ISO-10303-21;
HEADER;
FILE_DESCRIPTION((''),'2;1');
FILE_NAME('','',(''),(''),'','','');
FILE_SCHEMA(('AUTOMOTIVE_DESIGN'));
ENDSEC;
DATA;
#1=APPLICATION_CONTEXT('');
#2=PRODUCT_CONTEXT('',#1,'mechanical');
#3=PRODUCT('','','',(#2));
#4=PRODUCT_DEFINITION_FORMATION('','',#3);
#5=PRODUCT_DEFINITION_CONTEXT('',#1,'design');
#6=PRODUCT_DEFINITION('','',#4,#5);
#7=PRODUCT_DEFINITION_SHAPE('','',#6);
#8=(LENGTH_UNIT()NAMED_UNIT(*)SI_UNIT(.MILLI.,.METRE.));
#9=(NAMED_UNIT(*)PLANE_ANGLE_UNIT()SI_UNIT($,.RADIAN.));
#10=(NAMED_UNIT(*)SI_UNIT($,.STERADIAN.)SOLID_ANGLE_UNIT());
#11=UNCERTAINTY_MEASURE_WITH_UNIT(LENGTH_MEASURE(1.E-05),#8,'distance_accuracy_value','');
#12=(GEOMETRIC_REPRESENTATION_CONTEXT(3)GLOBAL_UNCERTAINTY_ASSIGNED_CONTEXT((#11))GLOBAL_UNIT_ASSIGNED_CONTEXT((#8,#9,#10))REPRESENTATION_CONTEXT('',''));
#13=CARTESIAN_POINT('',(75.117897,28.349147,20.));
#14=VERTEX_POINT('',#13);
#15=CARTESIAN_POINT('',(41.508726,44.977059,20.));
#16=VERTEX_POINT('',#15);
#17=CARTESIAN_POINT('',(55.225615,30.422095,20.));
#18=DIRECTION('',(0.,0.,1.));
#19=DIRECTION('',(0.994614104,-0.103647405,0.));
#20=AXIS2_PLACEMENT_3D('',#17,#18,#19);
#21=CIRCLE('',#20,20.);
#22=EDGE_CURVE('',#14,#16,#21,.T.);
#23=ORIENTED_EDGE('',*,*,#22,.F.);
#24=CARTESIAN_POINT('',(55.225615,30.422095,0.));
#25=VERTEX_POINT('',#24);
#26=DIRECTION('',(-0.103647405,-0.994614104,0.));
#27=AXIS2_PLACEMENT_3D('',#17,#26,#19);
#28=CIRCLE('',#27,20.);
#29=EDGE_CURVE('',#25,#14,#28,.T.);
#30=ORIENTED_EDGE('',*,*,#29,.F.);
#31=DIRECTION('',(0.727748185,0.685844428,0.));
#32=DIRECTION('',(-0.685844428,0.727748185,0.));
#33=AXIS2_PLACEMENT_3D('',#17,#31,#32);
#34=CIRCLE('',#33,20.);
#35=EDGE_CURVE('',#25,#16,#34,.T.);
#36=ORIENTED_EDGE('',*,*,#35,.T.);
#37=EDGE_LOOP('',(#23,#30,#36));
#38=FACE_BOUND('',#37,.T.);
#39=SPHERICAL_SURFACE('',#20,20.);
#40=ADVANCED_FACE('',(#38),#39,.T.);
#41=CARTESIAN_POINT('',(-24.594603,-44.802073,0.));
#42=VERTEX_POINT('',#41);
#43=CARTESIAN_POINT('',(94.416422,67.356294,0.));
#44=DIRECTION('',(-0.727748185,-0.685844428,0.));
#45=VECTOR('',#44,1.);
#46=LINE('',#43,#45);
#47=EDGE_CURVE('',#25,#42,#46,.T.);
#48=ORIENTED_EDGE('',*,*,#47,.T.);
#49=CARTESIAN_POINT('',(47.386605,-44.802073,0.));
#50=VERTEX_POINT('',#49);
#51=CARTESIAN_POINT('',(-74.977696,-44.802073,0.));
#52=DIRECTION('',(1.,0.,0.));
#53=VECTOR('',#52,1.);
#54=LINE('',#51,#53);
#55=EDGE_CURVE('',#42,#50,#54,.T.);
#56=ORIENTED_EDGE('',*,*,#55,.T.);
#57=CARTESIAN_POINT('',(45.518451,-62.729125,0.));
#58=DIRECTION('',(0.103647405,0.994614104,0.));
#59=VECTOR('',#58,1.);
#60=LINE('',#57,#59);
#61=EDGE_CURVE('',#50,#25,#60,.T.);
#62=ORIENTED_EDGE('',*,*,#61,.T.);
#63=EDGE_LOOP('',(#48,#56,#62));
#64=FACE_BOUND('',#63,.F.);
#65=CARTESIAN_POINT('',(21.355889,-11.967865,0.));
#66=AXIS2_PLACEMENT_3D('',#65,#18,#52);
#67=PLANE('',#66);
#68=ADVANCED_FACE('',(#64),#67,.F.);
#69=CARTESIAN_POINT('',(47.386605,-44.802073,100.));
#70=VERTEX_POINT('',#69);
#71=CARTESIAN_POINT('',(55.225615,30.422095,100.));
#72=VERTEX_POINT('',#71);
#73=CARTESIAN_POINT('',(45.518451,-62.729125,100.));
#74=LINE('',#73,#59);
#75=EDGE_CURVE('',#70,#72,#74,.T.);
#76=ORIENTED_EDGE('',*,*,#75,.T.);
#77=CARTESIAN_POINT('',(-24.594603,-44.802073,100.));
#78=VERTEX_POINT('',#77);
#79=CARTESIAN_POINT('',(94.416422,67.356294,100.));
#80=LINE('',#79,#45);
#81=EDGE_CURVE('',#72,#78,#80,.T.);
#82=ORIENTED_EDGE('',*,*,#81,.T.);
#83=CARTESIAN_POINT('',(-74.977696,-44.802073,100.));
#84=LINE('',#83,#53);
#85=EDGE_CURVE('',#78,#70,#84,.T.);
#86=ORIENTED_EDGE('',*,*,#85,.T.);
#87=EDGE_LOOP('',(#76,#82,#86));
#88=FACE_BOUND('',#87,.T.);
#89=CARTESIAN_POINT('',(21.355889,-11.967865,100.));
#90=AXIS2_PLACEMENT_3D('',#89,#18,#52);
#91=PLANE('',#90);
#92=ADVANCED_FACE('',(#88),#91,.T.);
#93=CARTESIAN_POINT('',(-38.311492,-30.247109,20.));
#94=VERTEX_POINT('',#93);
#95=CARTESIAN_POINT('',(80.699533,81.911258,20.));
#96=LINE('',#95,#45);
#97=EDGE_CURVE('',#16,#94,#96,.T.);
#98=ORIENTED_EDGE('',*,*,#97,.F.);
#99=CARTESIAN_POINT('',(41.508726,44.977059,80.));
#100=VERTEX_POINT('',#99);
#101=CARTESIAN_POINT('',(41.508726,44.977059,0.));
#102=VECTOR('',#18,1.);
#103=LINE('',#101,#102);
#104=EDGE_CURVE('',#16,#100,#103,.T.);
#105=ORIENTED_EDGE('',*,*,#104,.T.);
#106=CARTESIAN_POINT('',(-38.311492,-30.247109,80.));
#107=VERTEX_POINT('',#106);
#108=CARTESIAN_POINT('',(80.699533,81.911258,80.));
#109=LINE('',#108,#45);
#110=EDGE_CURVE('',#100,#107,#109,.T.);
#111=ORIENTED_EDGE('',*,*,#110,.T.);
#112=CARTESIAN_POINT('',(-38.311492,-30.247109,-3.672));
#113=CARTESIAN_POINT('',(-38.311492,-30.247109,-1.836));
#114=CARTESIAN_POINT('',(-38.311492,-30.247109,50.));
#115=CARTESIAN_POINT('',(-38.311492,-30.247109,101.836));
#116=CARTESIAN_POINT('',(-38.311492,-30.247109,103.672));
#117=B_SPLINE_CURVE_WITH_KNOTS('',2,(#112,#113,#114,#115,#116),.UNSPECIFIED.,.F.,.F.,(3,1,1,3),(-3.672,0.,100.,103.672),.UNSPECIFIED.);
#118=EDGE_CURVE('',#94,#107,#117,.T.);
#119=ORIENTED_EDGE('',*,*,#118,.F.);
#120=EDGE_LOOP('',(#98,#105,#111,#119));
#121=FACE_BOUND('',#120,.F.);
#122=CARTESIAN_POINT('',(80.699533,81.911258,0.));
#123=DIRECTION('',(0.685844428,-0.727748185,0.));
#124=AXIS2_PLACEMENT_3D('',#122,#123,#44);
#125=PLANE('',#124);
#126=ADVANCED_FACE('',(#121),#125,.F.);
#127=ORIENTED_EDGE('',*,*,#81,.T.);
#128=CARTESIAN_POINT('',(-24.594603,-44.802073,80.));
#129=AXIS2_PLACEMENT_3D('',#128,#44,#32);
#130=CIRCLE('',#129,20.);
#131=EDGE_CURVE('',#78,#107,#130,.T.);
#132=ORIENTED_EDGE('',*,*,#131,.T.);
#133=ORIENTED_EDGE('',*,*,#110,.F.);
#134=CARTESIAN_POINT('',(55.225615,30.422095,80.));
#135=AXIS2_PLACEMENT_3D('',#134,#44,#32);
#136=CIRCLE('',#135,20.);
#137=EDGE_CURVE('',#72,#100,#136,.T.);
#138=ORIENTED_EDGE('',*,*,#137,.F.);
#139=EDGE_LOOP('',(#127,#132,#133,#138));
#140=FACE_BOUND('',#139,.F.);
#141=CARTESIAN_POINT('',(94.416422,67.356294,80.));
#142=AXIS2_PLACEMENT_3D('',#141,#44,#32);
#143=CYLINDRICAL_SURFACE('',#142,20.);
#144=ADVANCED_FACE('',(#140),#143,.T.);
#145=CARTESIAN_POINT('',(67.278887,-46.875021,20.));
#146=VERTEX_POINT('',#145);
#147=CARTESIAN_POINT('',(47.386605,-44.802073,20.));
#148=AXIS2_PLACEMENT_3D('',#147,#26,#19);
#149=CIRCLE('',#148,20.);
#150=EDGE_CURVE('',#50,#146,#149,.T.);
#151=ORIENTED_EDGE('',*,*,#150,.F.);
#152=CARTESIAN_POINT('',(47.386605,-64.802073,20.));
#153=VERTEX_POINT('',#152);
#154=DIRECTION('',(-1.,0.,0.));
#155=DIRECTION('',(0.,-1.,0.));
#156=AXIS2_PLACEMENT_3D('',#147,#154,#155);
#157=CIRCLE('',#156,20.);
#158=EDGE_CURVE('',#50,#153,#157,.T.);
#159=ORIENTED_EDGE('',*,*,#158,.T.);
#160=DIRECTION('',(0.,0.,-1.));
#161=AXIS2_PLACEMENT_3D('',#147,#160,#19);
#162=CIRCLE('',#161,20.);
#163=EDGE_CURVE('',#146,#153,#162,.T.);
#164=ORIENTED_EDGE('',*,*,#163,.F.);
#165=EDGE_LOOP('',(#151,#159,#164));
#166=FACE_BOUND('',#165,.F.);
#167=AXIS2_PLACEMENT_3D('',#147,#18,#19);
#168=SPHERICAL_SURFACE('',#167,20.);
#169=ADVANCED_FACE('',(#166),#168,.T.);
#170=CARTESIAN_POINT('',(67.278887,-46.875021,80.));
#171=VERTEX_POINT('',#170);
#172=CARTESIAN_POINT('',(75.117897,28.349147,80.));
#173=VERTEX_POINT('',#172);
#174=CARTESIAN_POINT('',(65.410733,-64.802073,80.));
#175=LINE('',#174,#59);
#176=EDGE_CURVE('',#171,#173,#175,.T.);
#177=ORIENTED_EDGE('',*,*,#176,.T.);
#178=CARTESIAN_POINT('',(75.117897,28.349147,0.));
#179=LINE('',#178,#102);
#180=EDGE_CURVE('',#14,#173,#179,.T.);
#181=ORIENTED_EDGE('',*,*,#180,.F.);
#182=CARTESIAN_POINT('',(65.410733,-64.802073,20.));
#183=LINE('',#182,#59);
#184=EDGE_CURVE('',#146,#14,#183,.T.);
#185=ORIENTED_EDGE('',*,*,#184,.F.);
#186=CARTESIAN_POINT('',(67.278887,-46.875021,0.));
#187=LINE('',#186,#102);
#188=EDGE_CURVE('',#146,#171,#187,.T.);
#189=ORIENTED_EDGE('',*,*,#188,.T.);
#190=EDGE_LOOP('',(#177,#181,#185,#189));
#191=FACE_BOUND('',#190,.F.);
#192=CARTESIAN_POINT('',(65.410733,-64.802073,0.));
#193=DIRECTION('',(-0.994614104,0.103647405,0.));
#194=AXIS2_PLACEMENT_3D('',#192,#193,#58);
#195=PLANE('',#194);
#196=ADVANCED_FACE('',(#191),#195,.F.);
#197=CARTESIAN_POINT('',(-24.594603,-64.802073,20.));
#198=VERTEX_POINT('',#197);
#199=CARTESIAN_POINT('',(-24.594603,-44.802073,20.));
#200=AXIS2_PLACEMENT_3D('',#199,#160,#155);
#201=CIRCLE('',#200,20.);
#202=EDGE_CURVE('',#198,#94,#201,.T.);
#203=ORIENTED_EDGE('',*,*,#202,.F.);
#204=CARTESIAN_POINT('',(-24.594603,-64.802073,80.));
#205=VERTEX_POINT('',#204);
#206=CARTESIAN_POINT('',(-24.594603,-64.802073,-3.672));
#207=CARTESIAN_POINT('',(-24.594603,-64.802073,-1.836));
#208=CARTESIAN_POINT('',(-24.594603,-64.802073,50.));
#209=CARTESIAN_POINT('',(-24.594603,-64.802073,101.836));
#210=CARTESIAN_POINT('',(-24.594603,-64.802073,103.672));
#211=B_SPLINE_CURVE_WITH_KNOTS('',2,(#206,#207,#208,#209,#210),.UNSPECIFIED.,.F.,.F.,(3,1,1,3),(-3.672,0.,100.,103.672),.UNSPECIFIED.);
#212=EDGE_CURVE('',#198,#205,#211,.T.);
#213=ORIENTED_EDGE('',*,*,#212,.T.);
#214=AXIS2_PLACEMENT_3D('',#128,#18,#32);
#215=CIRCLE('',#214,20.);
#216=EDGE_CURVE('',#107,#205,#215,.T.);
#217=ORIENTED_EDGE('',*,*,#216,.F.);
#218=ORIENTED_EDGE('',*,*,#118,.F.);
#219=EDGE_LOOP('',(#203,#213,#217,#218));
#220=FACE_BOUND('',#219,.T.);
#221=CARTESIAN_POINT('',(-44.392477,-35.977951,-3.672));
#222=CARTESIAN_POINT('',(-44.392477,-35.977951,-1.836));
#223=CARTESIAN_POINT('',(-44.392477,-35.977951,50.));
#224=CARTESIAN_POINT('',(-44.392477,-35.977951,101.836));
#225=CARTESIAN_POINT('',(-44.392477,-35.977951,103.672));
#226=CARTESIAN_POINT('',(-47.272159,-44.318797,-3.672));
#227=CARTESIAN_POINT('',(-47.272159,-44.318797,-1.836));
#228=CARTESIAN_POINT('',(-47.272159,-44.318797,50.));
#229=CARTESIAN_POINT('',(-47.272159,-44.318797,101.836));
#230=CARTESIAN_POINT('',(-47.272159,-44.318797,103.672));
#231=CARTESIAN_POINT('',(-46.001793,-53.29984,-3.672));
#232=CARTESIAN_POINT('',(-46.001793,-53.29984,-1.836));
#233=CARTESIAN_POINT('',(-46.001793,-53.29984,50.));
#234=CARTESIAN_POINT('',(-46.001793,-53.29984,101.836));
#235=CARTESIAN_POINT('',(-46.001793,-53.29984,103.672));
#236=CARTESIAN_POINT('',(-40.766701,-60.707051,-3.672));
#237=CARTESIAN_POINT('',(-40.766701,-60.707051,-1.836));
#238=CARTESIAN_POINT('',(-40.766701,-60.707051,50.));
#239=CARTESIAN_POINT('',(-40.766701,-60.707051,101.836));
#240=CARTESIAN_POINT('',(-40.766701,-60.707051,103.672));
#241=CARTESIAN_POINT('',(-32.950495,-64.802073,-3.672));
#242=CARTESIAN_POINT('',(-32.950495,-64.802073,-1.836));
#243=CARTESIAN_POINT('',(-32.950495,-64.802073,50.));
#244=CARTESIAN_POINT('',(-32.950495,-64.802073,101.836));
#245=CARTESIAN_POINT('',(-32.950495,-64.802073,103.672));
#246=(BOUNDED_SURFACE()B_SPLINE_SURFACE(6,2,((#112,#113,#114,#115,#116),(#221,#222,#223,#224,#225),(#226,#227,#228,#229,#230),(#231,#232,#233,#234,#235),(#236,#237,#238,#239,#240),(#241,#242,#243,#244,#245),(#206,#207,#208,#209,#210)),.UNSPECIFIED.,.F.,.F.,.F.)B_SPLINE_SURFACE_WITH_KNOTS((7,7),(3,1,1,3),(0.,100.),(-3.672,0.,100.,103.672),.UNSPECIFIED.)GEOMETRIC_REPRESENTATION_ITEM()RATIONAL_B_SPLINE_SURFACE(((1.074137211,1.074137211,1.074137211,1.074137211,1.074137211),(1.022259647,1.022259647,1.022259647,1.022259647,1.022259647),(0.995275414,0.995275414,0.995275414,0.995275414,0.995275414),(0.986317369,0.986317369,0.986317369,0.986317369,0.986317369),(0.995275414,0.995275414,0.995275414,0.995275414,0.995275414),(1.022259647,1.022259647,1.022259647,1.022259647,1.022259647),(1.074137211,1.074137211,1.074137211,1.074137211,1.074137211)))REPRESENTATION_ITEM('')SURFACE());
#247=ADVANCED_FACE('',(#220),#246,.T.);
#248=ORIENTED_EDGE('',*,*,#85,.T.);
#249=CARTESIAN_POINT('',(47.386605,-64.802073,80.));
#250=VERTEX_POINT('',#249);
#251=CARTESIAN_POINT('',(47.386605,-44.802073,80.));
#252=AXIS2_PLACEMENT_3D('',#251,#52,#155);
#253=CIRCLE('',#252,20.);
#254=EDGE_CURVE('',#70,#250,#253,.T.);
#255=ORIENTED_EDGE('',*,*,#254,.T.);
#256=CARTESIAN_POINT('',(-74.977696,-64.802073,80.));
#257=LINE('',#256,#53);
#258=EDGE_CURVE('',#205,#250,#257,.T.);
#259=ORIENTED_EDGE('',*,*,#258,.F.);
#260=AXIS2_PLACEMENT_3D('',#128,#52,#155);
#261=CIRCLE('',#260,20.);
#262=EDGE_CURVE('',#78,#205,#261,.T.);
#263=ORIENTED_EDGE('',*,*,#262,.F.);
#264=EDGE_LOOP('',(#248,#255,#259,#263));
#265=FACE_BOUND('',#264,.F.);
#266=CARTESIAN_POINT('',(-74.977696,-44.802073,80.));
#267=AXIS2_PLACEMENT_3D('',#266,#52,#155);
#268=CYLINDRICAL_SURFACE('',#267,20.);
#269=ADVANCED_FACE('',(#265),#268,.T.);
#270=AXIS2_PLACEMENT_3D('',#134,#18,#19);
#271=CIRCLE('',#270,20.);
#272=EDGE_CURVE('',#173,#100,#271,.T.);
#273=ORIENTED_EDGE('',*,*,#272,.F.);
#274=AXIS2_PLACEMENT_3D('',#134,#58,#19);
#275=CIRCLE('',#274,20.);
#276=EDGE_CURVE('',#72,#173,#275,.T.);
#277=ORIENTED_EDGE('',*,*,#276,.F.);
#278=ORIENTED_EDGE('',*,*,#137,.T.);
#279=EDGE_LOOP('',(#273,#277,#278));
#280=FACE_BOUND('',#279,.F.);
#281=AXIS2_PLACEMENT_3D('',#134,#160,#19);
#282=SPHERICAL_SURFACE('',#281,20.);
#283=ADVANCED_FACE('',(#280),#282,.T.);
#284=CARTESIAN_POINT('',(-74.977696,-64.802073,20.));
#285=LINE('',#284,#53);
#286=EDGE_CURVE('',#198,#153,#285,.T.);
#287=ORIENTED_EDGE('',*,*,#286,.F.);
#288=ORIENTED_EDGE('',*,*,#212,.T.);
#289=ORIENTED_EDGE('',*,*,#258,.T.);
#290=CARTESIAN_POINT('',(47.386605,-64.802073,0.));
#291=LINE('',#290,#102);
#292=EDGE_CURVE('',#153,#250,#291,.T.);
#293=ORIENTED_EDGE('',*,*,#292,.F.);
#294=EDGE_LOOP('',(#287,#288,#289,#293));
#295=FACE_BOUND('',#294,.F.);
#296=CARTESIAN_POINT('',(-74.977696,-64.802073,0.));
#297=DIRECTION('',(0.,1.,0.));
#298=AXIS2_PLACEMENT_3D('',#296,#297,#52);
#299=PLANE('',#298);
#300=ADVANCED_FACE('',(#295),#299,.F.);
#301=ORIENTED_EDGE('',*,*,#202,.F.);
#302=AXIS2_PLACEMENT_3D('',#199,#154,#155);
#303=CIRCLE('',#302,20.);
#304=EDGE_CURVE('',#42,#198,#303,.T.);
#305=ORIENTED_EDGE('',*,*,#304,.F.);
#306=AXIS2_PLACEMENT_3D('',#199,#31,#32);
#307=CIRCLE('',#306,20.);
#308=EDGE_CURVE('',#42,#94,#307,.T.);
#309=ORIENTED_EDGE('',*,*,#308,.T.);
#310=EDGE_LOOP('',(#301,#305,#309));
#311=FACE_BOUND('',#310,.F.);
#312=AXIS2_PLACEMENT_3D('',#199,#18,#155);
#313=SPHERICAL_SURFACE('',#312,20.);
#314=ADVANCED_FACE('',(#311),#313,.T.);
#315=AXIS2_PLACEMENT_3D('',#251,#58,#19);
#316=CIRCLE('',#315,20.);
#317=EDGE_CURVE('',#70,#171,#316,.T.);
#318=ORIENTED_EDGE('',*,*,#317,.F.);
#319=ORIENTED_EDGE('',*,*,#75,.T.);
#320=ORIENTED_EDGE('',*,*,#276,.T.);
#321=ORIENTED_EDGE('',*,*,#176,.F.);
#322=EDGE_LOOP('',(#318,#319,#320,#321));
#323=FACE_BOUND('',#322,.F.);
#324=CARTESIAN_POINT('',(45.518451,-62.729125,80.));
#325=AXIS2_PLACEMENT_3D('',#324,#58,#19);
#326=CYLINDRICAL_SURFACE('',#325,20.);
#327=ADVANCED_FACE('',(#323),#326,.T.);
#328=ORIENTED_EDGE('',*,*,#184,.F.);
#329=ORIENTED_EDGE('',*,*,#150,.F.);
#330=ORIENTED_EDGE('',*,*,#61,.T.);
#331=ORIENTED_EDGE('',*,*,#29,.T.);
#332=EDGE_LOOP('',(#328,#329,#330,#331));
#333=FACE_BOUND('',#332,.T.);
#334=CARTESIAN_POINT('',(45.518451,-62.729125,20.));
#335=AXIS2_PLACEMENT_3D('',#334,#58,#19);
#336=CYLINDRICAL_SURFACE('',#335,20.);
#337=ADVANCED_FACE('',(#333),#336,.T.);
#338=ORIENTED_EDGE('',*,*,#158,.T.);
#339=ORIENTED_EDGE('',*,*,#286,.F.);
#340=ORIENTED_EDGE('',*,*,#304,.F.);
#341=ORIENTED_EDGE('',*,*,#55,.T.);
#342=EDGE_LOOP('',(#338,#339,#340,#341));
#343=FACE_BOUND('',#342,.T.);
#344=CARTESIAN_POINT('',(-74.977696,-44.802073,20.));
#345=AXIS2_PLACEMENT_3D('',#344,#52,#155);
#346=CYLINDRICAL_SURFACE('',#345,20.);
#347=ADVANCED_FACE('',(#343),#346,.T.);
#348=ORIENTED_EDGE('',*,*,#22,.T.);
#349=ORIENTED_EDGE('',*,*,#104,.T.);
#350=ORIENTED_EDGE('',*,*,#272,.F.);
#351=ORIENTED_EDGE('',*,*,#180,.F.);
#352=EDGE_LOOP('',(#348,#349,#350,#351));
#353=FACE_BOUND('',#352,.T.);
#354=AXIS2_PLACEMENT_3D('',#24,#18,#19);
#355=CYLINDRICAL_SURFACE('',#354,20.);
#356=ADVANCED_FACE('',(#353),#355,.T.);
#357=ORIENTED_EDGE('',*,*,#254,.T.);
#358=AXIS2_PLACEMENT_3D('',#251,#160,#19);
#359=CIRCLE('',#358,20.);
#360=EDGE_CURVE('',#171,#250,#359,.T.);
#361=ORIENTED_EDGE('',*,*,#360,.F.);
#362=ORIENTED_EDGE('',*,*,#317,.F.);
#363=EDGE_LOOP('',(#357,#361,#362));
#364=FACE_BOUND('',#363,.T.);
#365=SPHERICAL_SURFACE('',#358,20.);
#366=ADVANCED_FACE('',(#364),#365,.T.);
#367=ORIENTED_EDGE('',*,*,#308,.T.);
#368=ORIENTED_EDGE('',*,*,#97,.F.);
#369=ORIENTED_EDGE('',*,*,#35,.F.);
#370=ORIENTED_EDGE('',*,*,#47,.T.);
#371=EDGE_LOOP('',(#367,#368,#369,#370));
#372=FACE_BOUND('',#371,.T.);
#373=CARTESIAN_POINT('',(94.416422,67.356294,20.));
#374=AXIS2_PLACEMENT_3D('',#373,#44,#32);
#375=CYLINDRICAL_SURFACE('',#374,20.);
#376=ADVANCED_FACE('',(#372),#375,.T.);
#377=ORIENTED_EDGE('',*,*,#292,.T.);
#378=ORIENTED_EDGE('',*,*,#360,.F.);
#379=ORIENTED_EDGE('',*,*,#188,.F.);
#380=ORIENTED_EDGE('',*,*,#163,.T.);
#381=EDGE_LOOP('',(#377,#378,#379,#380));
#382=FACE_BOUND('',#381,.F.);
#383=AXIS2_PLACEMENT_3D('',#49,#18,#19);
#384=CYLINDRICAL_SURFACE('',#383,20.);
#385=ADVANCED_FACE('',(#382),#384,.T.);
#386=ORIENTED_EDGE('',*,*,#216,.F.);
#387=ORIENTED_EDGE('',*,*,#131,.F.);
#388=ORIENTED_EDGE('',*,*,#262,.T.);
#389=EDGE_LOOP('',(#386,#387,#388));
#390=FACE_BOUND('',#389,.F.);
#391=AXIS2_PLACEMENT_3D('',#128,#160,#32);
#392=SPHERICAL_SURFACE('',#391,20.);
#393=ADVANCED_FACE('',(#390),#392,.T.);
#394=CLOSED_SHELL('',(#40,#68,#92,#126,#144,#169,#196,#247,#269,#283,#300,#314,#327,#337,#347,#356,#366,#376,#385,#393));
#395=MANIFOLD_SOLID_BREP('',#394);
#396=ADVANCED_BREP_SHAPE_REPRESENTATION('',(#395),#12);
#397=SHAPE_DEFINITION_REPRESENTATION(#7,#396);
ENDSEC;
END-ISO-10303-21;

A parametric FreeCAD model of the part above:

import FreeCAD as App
import Part
import Sketcher

V = App.Vector
Q = App.Units.Quantity

doc = App.newDocument("Part")
body = doc.addObject("PartDesign::Body", "Body")

# Sketch on XY plane
sketch1 = body.newObject("Sketcher::SketchObject", "Sketch")
sketch1.AttachmentSupport = (doc.getObject("XY_Plane"), [""])
sketch1.MapMode = "FlatFace"
sketch1.addGeometry([
    Part.LineSegment(V(65, -65, 0), V(81, 82, 0)),
    Part.LineSegment(V(81, 82, 0), V(-68, -58, 0)),
    Part.LineSegment(V(-68, -58, 0), V(-75, -65, 0)),
    Part.LineSegment(V(-75, -65, 0), V(65, -65, 0)),
], False)
sketch1.addConstraint([
    Sketcher.Constraint("Coincident", 0, 2, 1, 1),
    Sketcher.Constraint("Coincident", 1, 2, 2, 1),
    Sketcher.Constraint("Coincident", 2, 2, 3, 1),
    Sketcher.Constraint("Coincident", 3, 2, 0, 1),
    Sketcher.Constraint("Horizontal", 3),
    Sketcher.Constraint("Parallel", 1, 2),
    Sketcher.Constraint("DistanceX", 3, 1, 3, 2, Q("140.388429 mm")),
    Sketcher.Constraint("DistanceX", 3, 2, 0, 2, Q("15.2888 mm")),
    Sketcher.Constraint("Distance", 2, Q("9.392319 mm")),
    Sketcher.Constraint("DistanceY", -1, 1, 0, 2, Q("81.911258 mm")),
    Sketcher.Constraint("DistanceY", 1, 2, 0, 2, Q("140.271661 mm")),
    Sketcher.Constraint("DistanceX", -1, 1, 0, 2, Q("80.699533 mm")),
])
pad1 = body.newObject("PartDesign::Pad", "Pad")
pad1.Profile = sketch1
pad1.Length = 100
doc.recompute()

fillet = body.newObject("PartDesign::Fillet", "Fillet")
fillet.Base = (pad1, ["Edge1"])
fillet.UseAllEdges = True
fillet.Radius = 20

doc.recompute()
